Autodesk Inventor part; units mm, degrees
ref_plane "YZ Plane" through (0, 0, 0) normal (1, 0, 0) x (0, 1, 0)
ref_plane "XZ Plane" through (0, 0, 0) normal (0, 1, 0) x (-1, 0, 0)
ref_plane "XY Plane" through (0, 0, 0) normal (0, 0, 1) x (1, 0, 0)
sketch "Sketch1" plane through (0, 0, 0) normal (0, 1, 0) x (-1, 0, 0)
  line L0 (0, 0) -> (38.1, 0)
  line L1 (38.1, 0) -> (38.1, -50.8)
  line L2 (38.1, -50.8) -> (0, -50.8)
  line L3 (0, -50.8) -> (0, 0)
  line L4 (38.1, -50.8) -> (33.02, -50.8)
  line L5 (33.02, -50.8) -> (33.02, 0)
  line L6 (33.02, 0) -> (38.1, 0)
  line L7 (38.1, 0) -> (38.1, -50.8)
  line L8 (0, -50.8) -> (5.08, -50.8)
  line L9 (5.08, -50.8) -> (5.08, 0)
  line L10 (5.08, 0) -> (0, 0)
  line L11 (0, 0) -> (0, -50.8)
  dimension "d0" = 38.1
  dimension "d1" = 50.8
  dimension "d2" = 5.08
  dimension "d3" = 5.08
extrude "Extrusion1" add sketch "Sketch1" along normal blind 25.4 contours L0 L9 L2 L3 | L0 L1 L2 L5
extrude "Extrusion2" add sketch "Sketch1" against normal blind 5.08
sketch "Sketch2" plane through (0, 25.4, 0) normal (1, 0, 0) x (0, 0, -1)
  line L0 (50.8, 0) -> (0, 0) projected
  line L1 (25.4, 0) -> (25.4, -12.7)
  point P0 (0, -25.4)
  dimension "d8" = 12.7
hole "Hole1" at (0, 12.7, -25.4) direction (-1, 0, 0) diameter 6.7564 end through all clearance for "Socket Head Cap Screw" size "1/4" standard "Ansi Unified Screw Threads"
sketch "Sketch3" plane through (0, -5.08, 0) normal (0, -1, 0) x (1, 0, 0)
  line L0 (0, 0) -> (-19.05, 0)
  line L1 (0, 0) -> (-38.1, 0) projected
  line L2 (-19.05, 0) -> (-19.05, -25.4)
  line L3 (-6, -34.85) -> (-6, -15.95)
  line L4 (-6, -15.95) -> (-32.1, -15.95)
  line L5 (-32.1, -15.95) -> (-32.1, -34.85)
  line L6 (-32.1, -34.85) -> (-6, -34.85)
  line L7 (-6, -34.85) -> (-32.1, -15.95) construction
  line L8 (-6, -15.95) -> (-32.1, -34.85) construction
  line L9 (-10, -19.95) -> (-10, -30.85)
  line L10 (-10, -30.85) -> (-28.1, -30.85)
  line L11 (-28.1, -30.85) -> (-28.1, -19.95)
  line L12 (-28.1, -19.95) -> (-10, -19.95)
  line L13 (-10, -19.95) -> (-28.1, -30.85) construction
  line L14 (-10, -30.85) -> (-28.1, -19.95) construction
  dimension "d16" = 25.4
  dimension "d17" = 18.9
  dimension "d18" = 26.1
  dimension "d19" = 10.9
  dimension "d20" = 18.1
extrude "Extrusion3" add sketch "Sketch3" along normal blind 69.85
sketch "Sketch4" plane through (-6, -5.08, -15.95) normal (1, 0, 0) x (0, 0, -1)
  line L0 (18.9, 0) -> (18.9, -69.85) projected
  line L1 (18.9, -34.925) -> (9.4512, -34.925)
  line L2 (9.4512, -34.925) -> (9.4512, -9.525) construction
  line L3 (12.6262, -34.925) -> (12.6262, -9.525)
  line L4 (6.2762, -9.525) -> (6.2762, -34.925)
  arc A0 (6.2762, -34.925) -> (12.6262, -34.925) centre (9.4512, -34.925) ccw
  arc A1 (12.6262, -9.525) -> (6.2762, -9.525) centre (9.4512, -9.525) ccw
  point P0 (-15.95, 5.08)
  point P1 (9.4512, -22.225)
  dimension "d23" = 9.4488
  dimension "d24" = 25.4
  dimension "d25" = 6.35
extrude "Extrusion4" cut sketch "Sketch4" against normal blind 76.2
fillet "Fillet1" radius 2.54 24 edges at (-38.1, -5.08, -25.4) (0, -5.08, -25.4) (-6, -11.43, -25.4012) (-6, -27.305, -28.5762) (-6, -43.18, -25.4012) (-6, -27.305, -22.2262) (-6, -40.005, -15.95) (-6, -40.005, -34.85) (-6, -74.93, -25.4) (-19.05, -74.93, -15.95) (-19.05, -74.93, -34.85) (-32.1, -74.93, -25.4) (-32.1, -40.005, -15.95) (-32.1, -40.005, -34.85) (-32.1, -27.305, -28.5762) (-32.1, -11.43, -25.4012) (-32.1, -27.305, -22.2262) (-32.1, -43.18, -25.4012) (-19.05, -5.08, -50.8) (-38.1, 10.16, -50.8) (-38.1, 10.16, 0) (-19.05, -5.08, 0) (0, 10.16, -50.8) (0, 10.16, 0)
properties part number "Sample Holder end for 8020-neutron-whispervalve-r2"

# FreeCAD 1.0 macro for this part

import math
import FreeCAD as App
import Part
import Sketcher
from FreeCAD import Vector
Q = App.Units.Quantity


def edges_at(feature, points):
    """Names of the edges that pass closest to the given points."""
    edges = feature.Shape.Edges
    near = lambda p: min(range(len(edges)), key=lambda i: edges[i].distToShape(Part.Vertex(*p))[0])
    return sorted({f"Edge{near(p) + 1}" for p in points})

doc = App.newDocument("Part")
body = doc.addObject("PartDesign::Body", "Body")
body.AllowCompound = True

# Sketch on XZ plane
sketch1 = body.newObject("Sketcher::SketchObject", "Sketch")
sketch1.AttachmentSupport = (doc.getObject("XZ_Plane"), [""])
sketch1.MapMode = "FlatFace"
sketch1.addGeometry([
    Part.LineSegment(Vector(-5, 0, 0), Vector(0, 0, 0)),  # 0
    Part.LineSegment(Vector(0, 0, 0), Vector(0, -51, 0)),  # 1
    Part.LineSegment(Vector(0, -51, 0), Vector(-5, -51, 0)),  # 2
    Part.LineSegment(Vector(-5, -51, 0), Vector(-5, 0, 0)),  # 3
    Part.LineSegment(Vector(-38, 0, 0), Vector(-33, 0, 0)),  # 4
    Part.LineSegment(Vector(-33, 0, 0), Vector(-33, -51, 0)),  # 5
    Part.LineSegment(Vector(-33, -51, 0), Vector(-38, -51, 0)),  # 6
    Part.LineSegment(Vector(-38, -51, 0), Vector(-38, 0, 0)),  # 7
], False)
sketch1.addConstraint([
    Sketcher.Constraint("Coincident", 0, 2, 1, 1),
    Sketcher.Constraint("Coincident", 1, 2, 2, 1),
    Sketcher.Constraint("Coincident", 2, 2, 3, 1),
    Sketcher.Constraint("Coincident", 3, 2, 0, 1),
    Sketcher.Constraint("Coincident", 4, 2, 5, 1),
    Sketcher.Constraint("Coincident", 5, 2, 6, 1),
    Sketcher.Constraint("Coincident", 6, 2, 7, 1),
    Sketcher.Constraint("Coincident", 7, 2, 4, 1),
    Sketcher.Constraint("Horizontal", 0),
    Sketcher.Constraint("Vertical", 1),
    Sketcher.Constraint("Horizontal", 2),
    Sketcher.Constraint("Vertical", 3),
    Sketcher.Constraint("Horizontal", 4),
    Sketcher.Constraint("Vertical", 5),
    Sketcher.Constraint("Horizontal", 6),
    Sketcher.Constraint("Vertical", 7),
    Sketcher.Constraint("Coincident", 0, 2, -1, 1),
    Sketcher.Constraint("PointOnObject", 4, 2, -1),
    Sketcher.Constraint("Horizontal", 2, 2, 5, 2),
    Sketcher.Constraint("Equal", 2, 4),
    Sketcher.Constraint("DistanceY", 1, 2, 1, 1, Q("2 in")),
    Sketcher.Constraint("DistanceX", 0, 1, 0, 2, Q("0.2 in")),
    Sketcher.Constraint("DistanceX", 6, 2, -1, 1, Q("1.5 in")),
])
pad1 = body.newObject("PartDesign::Pad", "Pad")
pad1.Profile = sketch1
pad1.Length = Q("1 in")
pad1.Reversed = True

# Sketch on XZ plane
sketch2 = body.newObject("Sketcher::SketchObject", "Sketch001")
sketch2.AttachmentSupport = (doc.getObject("XZ_Plane"), [""])
sketch2.MapMode = "FlatFace"
sketch2.addGeometry([
    Part.LineSegment(Vector(0, 0, 0), Vector(0, -51, 0)),
    Part.LineSegment(Vector(0, -51, 0), Vector(-38, -51, 0)),
    Part.LineSegment(Vector(-38, -51, 0), Vector(-38, 0, 0)),
    Part.LineSegment(Vector(-38, 0, 0), Vector(0, 0, 0)),
], False)
sketch2.addConstraint([
    Sketcher.Constraint("Coincident", 0, 2, 1, 1),
    Sketcher.Constraint("Coincident", 1, 2, 2, 1),
    Sketcher.Constraint("Coincident", 2, 2, 3, 1),
    Sketcher.Constraint("Coincident", 3, 2, 0, 1),
    Sketcher.Constraint("Vertical", 0),
    Sketcher.Constraint("Horizontal", 1),
    Sketcher.Constraint("Vertical", 2),
    Sketcher.Constraint("Horizontal", 3),
    Sketcher.Constraint("Coincident", 3, 2, -1, 1),
    Sketcher.Constraint("DistanceY", 0, 2, 0, 1, Q("2 in")),
    Sketcher.Constraint("DistanceX", 1, 2, 1, 1, Q("1.5 in")),
])
pad2 = body.newObject("PartDesign::Pad", "Pad001")
pad2.Profile = sketch2
pad2.Length = Q("0.2 in")

# Sketch on YZ plane
sketch3 = body.newObject("Sketcher::SketchObject", "Sketch002")
sketch3.AttachmentSupport = (doc.getObject("YZ_Plane"), [""])
sketch3.MapMode = "FlatFace"
sketch3.addGeometry(Part.Circle(Vector(12.7, -25.4, 0), Vector(0, 0, 1), 3.4), False)
sketch3.addConstraint([
    Sketcher.Constraint("Diameter", 0, Q("0.266 in")),
    Sketcher.Constraint("DistanceY", 0, 3, -1, 1, Q("1 in")),
    Sketcher.Constraint("DistanceX", -1, 1, 0, 3, Q("0.5 in")),
])
doc.recompute()
hole = body.newObject("PartDesign::Hole", "Hole")
hole.Profile = sketch3
hole.ThreadType = "None"
hole.Diameter = Q("0.266 in")
hole.DepthType = "ThroughAll"

# Sketch on XZ plane
sketch4 = body.newObject("Sketcher::SketchObject", "Sketch003")
sketch4.AttachmentSupport = (doc.getObject("XZ_Plane"), [""])
sketch4.MapMode = "FlatFace"
sketch4.AttachmentOffset = App.Placement(Vector(0, 0, 0.2 * 25.4), App.Rotation())
sketch4.addGeometry([
    Part.LineSegment(Vector(-6, -16, 0), Vector(-19, -16, 0)),  # 0
    Part.LineSegment(Vector(-19, -16, 0), Vector(-32, -16, 0)),  # 1
    Part.LineSegment(Vector(-32, -16, 0), Vector(-32, -35, 0)),  # 2
    Part.LineSegment(Vector(-32, -35, 0), Vector(-6, -35, 0)),  # 3
    Part.LineSegment(Vector(-6, -35, 0), Vector(-6, -16, 0)),  # 4
    Part.LineSegment(Vector(-28, -20, 0), Vector(-19, -20, 0)),  # 5
    Part.LineSegment(Vector(-19, -20, 0), Vector(-10, -20, 0)),  # 6
    Part.LineSegment(Vector(-10, -20, 0), Vector(-10, -31, 0)),  # 7
    Part.LineSegment(Vector(-10, -31, 0), Vector(-28, -31, 0)),  # 8
    Part.LineSegment(Vector(-28, -31, 0), Vector(-28, -20, 0)),  # 9
], False)
sketch4.addConstraint([
    Sketcher.Constraint("Coincident", 0, 2, 1, 1),
    Sketcher.Constraint("Coincident", 1, 2, 2, 1),
    Sketcher.Constraint("Coincident", 2, 2, 3, 1),
    Sketcher.Constraint("Coincident", 3, 2, 4, 1),
    Sketcher.Constraint("Coincident", 4, 2, 0, 1),
    Sketcher.Constraint("Coincident", 5, 2, 6, 1),
    Sketcher.Constraint("Coincident", 6, 2, 7, 1),
    Sketcher.Constraint("Coincident", 7, 2, 8, 1),
    Sketcher.Constraint("Coincident", 8, 2, 9, 1),
    Sketcher.Constraint("Coincident", 9, 2, 5, 1),
    Sketcher.Constraint("Horizontal", 0),
    Sketcher.Constraint("Horizontal", 1),
    Sketcher.Constraint("Vertical", 2),
    Sketcher.Constraint("Horizontal", 3),
    Sketcher.Constraint("Vertical", 4),
    Sketcher.Constraint("Horizontal", 5),
    Sketcher.Constraint("Horizontal", 6),
    Sketcher.Constraint("Vertical", 7),
    Sketcher.Constraint("Horizontal", 8),
    Sketcher.Constraint("Vertical", 9),
    Sketcher.Constraint("Vertical", 0, 2, 5, 2),
    Sketcher.Constraint("Equal", 0, 1),
    Sketcher.Constraint("Equal", 5, 6),
    Sketcher.Constraint("DistanceX", 8, 2, 8, 1, Q("0.7126 in")),
    Sketcher.Constraint("DistanceY", 2, 2, 2, 1, Q("0.7441 in")),
    Sketcher.Constraint("DistanceX", 3, 1, 3, 2, 26.1),
    Sketcher.Constraint("DistanceY", 7, 2, 7, 1, 10.9),
    Sketcher.Constraint("DistanceX", 0, 2, -1, 1, Q("0.75 in")),
    Sketcher.Constraint("DistanceY", 0, 2, -1, 1, 15.95),
    Sketcher.Constraint("DistanceY", 5, 2, -1, 1, 19.95),
])
pad3 = body.newObject("PartDesign::Pad", "Pad002")
pad3.Profile = sketch4
pad3.Length = Q("2.75 in")

# Sketch on YZ plane
sketch5 = body.newObject("Sketcher::SketchObject", "Sketch004")
sketch5.AttachmentSupport = (doc.getObject("YZ_Plane"), [""])
sketch5.MapMode = "FlatFace"
sketch5.AttachmentOffset = App.Placement(Vector(0, 0, -6), App.Rotation())
sketch5.addGeometry([
    Part.ArcOfCircle(Part.Circle(Vector(-40, -25.4, 0), Vector(0, 0, 1), 3.2), math.radians(90), math.radians(270)),
    Part.LineSegment(Vector(-40, -28.6, 0), Vector(-14.6, -28.6, 0)),
    Part.ArcOfCircle(Part.Circle(Vector(-14.6, -25.4, 0), Vector(0, 0, 1), 3.2), math.radians(-90), math.radians(90)),
    Part.LineSegment(Vector(-14.6, -22.2, 0), Vector(-40, -22.2, 0)),
], False)
sketch5.addConstraint([
    Sketcher.Constraint("Tangent", 0, 2, 1, 1),
    Sketcher.Constraint("Tangent", 1, 2, 2, 1),
    Sketcher.Constraint("Tangent", 2, 2, 3, 1),
    Sketcher.Constraint("Tangent", 3, 2, 0, 1),
    Sketcher.Constraint("Horizontal", 1),
    Sketcher.Constraint("Horizontal", 3),
    Sketcher.Constraint("DistanceX", 1, 1, 1, 2, Q("1 in")),
    Sketcher.Constraint("Radius", 0, Q("0.125 in")),
    Sketcher.Constraint("DistanceX", 0, 3, -1, 1, Q("1.575 in")),
    Sketcher.Constraint("DistanceY", 0, 3, -1, 1, 25.4012),
])
pocket1 = body.newObject("PartDesign::Pocket", "Pocket")
pocket1.Profile = sketch5
pocket1.Length = Q("3 in")
doc.recompute()

fillet = body.newObject("PartDesign::Fillet", "Fillet")
fillet.Base = (pocket1, edges_at(pocket1, [
    (-38.1, -5.08, -25.4),
    (0, -5.08, -25.4),
    (-6, -11.43, -25.401),
    (-6, -27.305, -28.576),
    (-6, -43.18, -25.401),
    (-6, -27.305, -22.226),
    (-6, -40.005, -15.95),
    (-6, -40.005, -34.85),
    (-6, -74.93, -25.4),
    (-19.05, -74.93, -15.95),
    (-19.05, -74.93, -34.85),
    (-32.1, -74.93, -25.4),
    (-32.1, -40.005, -15.95),
    (-32.1, -40.005, -34.85),
    (-32.1, -27.305, -28.576),
    (-32.1, -11.43, -25.401),
    (-32.1, -27.305, -22.226),
    (-32.1, -43.18, -25.401),
    (-19.05, -5.08, -50.8),
    (-38.1, 10.16, -50.8),
    (-38.1, 10.16, 0),
    (-19.05, -5.08, 0),
    (0, 10.16, -50.8),
    (0, 10.16, 0),
]))
fillet.Radius = Q("0.1 in")

doc.recompute()
